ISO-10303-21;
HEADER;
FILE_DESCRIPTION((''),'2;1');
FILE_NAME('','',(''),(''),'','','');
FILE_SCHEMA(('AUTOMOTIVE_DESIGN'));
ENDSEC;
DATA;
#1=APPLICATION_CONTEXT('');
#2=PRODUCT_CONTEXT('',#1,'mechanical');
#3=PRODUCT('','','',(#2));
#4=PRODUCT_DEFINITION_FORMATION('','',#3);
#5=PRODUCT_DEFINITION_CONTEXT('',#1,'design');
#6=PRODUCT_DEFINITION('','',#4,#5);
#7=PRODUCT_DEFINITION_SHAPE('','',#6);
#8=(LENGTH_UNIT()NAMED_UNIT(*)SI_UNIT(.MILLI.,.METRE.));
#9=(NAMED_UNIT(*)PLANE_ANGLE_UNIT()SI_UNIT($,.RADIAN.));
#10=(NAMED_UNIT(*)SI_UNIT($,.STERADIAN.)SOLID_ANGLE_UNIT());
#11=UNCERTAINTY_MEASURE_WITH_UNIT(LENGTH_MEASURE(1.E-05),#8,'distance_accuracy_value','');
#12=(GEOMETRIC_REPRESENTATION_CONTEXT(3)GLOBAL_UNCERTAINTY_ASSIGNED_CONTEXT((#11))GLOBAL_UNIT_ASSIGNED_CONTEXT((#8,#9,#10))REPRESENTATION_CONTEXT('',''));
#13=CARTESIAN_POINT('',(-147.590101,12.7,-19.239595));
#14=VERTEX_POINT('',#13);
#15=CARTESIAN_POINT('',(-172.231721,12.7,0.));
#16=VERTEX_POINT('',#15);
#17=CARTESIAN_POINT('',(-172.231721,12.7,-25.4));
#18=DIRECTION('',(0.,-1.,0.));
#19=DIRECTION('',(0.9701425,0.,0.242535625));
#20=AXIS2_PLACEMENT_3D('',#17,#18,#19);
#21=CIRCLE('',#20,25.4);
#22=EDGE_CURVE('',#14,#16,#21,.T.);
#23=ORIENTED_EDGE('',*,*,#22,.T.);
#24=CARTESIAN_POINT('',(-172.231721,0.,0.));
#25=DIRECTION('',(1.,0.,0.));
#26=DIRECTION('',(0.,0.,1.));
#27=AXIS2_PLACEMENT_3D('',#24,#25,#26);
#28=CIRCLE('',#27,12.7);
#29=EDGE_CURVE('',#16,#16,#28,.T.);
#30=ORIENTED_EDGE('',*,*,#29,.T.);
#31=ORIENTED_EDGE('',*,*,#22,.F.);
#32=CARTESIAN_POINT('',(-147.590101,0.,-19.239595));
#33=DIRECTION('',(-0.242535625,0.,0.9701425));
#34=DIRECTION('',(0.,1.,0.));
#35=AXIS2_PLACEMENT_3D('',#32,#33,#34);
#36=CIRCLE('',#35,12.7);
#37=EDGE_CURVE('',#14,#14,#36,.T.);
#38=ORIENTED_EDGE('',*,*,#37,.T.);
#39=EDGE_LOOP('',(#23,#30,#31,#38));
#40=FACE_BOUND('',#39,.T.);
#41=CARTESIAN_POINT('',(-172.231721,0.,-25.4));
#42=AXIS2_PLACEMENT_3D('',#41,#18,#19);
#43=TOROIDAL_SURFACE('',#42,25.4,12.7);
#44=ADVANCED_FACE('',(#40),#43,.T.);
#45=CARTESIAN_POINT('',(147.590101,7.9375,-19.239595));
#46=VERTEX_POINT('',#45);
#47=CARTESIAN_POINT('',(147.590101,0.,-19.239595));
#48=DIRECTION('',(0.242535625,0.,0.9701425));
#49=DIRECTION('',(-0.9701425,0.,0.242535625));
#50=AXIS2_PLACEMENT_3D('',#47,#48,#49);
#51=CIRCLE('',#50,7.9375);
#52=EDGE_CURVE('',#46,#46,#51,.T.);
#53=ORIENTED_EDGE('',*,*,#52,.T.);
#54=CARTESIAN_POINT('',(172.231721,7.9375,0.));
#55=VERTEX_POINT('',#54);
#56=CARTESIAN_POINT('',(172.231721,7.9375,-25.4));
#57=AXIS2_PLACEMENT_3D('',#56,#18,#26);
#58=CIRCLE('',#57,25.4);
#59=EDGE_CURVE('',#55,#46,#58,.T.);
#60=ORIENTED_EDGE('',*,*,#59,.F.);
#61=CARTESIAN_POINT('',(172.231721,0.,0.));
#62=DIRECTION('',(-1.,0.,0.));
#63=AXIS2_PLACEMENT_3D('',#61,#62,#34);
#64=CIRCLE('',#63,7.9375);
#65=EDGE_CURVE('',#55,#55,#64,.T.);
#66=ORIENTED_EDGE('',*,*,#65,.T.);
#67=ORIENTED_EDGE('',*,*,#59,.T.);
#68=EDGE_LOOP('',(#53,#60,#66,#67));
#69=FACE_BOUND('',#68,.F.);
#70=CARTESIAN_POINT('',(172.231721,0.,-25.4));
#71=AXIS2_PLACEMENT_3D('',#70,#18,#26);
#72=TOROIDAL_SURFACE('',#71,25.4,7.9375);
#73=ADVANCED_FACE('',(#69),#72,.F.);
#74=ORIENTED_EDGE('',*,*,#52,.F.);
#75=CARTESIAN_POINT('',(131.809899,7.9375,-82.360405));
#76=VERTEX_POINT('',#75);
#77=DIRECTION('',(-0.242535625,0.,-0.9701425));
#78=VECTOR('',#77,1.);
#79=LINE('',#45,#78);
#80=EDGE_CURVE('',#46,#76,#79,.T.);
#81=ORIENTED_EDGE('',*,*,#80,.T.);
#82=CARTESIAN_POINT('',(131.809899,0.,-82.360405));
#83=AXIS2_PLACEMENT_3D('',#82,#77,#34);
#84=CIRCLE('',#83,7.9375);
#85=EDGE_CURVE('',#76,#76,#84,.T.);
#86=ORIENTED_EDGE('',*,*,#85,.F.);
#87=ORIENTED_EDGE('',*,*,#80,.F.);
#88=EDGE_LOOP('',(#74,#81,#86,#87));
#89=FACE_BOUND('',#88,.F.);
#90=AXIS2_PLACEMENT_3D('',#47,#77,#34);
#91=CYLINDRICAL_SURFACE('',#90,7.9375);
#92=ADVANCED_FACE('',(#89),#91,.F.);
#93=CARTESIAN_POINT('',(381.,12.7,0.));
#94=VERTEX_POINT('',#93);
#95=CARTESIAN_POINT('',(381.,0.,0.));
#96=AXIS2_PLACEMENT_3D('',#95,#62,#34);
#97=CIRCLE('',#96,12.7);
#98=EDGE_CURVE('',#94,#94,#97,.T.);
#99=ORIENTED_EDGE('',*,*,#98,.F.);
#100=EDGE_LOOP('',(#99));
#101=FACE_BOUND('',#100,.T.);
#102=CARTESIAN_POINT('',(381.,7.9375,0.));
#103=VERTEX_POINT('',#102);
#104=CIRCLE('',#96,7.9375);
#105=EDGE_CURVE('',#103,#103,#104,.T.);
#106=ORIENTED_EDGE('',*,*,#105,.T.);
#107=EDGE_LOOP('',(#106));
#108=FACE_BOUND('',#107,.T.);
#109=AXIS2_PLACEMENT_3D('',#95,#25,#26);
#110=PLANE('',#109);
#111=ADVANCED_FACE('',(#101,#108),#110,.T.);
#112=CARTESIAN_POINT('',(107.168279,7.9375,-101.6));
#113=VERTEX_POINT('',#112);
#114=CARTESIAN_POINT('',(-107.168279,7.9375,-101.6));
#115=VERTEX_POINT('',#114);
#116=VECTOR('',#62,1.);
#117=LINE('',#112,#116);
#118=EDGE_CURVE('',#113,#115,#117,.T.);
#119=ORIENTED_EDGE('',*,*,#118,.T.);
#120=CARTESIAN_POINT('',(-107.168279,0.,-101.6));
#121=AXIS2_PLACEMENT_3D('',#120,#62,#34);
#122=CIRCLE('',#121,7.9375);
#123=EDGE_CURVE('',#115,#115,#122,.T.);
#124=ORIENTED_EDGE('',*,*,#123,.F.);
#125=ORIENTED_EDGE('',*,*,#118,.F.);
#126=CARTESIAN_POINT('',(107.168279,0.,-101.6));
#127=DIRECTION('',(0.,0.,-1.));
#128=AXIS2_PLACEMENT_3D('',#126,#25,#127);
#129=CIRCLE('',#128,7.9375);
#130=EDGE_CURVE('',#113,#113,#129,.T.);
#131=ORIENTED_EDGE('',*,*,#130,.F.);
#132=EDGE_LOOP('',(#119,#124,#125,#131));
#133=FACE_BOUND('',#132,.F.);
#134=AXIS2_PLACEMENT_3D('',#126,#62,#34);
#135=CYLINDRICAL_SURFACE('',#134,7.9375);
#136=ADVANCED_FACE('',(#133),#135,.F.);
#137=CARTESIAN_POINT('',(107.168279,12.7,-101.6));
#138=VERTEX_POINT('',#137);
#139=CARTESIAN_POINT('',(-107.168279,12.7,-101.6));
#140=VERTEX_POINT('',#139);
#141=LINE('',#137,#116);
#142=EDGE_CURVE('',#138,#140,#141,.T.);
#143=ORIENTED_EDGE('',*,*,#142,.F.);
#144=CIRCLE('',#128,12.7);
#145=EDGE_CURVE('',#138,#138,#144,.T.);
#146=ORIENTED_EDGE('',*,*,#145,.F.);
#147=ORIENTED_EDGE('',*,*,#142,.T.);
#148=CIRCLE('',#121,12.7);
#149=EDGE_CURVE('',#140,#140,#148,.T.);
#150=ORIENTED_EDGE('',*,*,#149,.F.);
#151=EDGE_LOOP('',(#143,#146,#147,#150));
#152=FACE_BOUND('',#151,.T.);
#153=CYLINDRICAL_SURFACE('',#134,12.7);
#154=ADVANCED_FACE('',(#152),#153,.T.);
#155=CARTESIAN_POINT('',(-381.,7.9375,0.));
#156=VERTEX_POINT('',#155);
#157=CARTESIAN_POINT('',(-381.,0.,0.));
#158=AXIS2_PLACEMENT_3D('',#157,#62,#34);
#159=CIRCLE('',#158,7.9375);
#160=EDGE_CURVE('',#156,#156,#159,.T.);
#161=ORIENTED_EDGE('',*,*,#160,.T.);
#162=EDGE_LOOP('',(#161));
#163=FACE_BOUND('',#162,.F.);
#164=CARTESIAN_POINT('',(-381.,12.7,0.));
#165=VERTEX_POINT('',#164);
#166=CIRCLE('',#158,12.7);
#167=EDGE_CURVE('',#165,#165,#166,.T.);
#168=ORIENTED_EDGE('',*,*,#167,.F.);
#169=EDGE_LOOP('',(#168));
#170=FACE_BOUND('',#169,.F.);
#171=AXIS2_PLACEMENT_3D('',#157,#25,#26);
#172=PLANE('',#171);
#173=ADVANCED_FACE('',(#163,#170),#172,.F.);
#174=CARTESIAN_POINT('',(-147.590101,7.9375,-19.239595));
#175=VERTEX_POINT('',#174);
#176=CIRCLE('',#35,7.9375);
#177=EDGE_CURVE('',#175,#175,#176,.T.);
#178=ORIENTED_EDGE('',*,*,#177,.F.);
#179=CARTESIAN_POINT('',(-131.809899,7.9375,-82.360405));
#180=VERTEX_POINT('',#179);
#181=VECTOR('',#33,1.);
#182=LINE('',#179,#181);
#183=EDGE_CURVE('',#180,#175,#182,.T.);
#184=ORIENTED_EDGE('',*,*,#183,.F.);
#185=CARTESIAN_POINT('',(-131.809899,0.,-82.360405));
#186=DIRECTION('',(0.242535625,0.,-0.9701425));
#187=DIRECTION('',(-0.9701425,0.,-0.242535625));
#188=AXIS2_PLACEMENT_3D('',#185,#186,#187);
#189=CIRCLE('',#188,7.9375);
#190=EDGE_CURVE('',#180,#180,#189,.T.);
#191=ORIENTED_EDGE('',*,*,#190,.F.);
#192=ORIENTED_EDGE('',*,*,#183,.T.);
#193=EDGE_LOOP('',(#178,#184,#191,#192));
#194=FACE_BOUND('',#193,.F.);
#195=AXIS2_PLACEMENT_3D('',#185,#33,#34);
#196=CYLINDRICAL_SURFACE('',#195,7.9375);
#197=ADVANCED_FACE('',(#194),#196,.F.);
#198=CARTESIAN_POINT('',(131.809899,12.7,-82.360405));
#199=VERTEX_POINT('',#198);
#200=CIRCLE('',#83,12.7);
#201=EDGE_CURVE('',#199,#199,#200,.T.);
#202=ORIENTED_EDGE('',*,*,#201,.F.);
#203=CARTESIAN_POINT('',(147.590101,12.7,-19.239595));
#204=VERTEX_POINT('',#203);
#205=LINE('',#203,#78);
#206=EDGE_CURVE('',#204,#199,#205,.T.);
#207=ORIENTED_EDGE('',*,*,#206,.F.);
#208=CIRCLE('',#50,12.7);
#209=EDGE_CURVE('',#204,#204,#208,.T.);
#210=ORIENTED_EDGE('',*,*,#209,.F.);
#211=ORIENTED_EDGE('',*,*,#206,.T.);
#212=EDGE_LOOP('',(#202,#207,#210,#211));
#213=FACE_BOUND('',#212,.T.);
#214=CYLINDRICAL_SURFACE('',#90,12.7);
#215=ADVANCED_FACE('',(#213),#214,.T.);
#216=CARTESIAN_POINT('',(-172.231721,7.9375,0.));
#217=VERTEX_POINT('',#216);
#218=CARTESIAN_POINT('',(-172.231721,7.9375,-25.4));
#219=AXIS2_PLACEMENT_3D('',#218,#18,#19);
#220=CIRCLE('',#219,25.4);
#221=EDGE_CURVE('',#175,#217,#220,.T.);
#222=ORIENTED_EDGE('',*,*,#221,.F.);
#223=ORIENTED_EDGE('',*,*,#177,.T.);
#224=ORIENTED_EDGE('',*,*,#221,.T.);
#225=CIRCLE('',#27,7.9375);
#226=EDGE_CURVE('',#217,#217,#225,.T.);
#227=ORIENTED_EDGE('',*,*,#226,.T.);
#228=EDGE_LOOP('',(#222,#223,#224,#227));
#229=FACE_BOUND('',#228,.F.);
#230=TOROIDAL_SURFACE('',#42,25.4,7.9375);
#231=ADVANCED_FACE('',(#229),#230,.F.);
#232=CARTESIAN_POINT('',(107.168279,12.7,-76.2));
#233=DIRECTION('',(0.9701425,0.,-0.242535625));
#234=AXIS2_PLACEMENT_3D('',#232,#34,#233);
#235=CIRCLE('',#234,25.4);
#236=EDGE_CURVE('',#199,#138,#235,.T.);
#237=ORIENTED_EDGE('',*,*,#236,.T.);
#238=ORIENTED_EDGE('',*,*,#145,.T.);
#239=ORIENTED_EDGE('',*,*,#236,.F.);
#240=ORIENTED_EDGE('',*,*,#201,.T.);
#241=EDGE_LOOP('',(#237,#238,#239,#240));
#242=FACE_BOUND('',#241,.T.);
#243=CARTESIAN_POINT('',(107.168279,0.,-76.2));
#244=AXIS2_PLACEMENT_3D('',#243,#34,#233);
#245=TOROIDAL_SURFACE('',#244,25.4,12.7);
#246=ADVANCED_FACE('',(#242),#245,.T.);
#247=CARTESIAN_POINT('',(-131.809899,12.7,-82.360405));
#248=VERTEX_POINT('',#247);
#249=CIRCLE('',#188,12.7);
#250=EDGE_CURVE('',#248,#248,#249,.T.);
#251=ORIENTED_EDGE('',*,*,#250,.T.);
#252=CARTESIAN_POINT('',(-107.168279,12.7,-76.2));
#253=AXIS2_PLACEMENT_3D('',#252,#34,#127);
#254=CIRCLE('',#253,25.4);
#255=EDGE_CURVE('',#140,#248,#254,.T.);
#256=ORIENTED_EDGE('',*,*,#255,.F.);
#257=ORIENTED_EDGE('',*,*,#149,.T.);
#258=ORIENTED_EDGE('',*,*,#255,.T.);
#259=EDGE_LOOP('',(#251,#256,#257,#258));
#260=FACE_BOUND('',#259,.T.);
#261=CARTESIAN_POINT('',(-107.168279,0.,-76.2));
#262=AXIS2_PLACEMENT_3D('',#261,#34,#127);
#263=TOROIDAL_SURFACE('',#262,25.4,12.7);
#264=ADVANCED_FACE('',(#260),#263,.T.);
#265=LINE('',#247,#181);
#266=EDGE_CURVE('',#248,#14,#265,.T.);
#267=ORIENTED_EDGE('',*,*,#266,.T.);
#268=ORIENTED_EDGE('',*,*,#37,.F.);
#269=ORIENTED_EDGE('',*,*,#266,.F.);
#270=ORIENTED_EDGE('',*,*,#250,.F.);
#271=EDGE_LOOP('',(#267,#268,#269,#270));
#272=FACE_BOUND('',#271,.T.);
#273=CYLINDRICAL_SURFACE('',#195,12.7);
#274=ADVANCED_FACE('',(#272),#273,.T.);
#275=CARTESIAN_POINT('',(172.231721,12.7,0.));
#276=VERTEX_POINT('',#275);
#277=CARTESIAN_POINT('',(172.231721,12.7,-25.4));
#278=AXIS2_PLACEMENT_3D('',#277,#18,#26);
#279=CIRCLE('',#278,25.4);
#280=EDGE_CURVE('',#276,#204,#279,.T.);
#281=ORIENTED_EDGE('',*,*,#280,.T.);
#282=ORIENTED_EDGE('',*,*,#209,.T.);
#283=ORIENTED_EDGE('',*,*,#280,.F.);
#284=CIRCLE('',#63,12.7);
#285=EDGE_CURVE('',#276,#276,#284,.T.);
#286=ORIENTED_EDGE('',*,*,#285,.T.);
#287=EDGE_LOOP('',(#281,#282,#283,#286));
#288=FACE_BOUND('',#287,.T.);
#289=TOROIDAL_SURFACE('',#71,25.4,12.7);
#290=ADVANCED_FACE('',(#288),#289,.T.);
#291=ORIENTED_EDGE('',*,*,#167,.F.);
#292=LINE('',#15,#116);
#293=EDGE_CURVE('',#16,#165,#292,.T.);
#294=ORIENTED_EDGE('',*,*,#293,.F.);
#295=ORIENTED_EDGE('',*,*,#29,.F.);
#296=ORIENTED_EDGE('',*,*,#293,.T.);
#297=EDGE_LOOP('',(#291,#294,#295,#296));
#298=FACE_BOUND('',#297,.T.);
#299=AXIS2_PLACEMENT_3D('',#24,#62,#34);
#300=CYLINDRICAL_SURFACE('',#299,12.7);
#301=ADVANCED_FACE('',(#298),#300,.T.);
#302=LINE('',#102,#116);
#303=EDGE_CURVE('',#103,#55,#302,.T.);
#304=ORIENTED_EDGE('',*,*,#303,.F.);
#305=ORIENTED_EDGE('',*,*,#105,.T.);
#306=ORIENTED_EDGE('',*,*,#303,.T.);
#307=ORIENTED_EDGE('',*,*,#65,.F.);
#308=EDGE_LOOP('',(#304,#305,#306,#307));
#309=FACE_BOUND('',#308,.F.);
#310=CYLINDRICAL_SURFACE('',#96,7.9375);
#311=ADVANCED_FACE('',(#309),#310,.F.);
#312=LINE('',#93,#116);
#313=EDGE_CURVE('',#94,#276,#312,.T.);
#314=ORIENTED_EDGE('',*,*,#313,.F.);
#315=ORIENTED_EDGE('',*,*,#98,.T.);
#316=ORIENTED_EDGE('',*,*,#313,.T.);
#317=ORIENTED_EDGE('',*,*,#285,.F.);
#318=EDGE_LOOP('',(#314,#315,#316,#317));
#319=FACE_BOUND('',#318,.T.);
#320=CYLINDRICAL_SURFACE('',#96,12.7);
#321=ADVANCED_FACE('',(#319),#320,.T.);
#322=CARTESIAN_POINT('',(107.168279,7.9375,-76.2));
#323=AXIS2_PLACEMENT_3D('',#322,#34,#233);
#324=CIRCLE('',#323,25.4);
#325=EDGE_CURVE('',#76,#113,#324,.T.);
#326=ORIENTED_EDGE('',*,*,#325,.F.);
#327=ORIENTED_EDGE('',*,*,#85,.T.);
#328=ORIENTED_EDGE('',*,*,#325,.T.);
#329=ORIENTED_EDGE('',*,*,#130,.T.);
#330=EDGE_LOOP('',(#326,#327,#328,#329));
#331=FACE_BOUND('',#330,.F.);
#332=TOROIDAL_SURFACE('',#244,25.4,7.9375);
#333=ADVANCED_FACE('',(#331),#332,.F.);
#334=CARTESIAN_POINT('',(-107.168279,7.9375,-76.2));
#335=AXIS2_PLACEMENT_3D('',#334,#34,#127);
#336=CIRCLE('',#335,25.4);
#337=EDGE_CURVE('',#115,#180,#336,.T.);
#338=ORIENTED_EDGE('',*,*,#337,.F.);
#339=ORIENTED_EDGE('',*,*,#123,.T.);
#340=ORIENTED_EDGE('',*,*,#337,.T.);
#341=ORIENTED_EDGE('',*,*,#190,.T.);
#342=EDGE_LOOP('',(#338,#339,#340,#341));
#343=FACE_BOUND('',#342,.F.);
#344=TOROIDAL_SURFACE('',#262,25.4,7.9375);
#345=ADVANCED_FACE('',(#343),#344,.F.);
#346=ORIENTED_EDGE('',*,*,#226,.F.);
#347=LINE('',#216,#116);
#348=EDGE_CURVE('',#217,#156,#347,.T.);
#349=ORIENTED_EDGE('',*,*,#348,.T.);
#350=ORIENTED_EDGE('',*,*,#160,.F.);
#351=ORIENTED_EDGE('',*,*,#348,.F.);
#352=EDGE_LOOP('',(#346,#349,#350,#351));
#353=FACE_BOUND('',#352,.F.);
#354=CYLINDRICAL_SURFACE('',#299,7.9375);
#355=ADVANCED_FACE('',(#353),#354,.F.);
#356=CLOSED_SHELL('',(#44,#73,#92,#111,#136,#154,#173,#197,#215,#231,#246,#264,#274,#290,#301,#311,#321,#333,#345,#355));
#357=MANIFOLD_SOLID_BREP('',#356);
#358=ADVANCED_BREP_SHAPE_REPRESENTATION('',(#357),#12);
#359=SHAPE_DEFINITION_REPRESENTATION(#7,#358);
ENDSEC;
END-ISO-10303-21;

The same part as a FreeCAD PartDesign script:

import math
import FreeCAD as App
import Part
import Sketcher

V = App.Vector
Q = App.Units.Quantity

doc = App.newDocument("Part")
body = doc.addObject("PartDesign::Body", "Body")

# Sketch on YZ plane
sketch1 = body.newObject("Sketcher::SketchObject", "Sketch")
sketch1.AttachmentSupport = (doc.getObject("YZ_Plane"), [""])
sketch1.MapMode = "FlatFace"
sketch1.AttachmentOffset = App.Placement(V(0, 0, 15 * 25.4), App.Rotation())
sketch1.addGeometry([
    Part.Circle(V(0, 0, 0), V(0, 0, 1), 13),
    Part.Circle(V(0, 0, 0), V(0, 0, 1), 8),
], False)
sketch1.addConstraint([
    Sketcher.Constraint("Coincident", 0, 3, -1, 1),
    Sketcher.Constraint("Coincident", 1, 3, -1, 1),
    Sketcher.Constraint("Diameter", 0, Q("1 in")),
    Sketcher.Constraint("Diameter", 1, Q("0.625 in")),
])

# Sketch on XZ plane
sketch2 = body.newObject("Sketcher::SketchObject", "Sketch001")
sketch2.AttachmentSupport = (doc.getObject("XZ_Plane"), [""])
sketch2.MapMode = "FlatFace"
sketch2.addGeometry([
    Part.LineSegment(V(381, 0, 0), V(172, 0, 0)),  # 0
    Part.ArcOfCircle(Part.Circle(V(172, -25, 0), V(0, 0, 1), 25), math.radians(90), math.radians(166)),  # 1
    Part.LineSegment(V(148, -19, 0), V(132, -82, 0)),  # 2
    Part.ArcOfCircle(Part.Circle(V(107, -76, 0), V(0, 0, 1), 25), math.radians(-90), math.radians(-14)),  # 3
    Part.LineSegment(V(107, -102, 0), V(-107, -102, 0)),  # 4
    Part.ArcOfCircle(Part.Circle(V(-107, -76, 0), V(0, 0, 1), 25), math.radians(-166), math.radians(-90)),  # 5
    Part.LineSegment(V(-132, -82, 0), V(-148, -19, 0)),  # 6
    Part.ArcOfCircle(Part.Circle(V(-172, -25, 0), V(0, 0, 1), 25), math.radians(14), math.radians(90)),  # 7
    Part.LineSegment(V(-172, 0, 0), V(-381, 0, 0)),  # 8
], False)
sketch2.addConstraint([
    Sketcher.Constraint("Tangent", 0, 2, 1, 1),
    Sketcher.Constraint("Tangent", 1, 2, 2, 1),
    Sketcher.Constraint("Tangent", 2, 2, 3, 2),
    Sketcher.Constraint("Tangent", 3, 1, 4, 1),
    Sketcher.Constraint("Tangent", 4, 2, 5, 2),
    Sketcher.Constraint("Tangent", 5, 1, 6, 1),
    Sketcher.Constraint("Tangent", 6, 2, 7, 1),
    Sketcher.Constraint("Tangent", 7, 2, 8, 1),
    Sketcher.Constraint("Horizontal", 0),
    Sketcher.Constraint("Horizontal", 4),
    Sketcher.Constraint("Horizontal", 8),
    Sketcher.Constraint("Equal", 1, 3),
    Sketcher.Constraint("Equal", 3, 5),
    Sketcher.Constraint("Equal", 5, 7),
    Sketcher.Constraint("Symmetric", 0, 2, 7, 2, -1, 1),
    Sketcher.Constraint("Symmetric", 2, 2, 5, 1, -2),
    Sketcher.Constraint("Equal", 0, 8),
    Sketcher.Constraint("Radius", 1, Q("1 in")),
    Sketcher.Constraint("DistanceY", 3, 3, -1, 1, Q("3 in")),
    Sketcher.Constraint("DistanceX", -1, 1, 0, 1, Q("15 in")),
    Sketcher.Constraint("DistanceX", 5, 3, 1, 3, Q("11 in")),
    Sketcher.Constraint("DistanceX", 0, 2, 0, 1, 208.768279),
])
doc.recompute()

additivepipe = body.newObject("PartDesign::AdditivePipe", "AdditivePipe")
additivepipe.Profile = sketch1
additivepipe.Spine = (sketch2, ["Edge1", "Edge2", "Edge3", "Edge4", "Edge5", "Edge6", "Edge7", "Edge8", "Edge9"])

doc.recompute()
